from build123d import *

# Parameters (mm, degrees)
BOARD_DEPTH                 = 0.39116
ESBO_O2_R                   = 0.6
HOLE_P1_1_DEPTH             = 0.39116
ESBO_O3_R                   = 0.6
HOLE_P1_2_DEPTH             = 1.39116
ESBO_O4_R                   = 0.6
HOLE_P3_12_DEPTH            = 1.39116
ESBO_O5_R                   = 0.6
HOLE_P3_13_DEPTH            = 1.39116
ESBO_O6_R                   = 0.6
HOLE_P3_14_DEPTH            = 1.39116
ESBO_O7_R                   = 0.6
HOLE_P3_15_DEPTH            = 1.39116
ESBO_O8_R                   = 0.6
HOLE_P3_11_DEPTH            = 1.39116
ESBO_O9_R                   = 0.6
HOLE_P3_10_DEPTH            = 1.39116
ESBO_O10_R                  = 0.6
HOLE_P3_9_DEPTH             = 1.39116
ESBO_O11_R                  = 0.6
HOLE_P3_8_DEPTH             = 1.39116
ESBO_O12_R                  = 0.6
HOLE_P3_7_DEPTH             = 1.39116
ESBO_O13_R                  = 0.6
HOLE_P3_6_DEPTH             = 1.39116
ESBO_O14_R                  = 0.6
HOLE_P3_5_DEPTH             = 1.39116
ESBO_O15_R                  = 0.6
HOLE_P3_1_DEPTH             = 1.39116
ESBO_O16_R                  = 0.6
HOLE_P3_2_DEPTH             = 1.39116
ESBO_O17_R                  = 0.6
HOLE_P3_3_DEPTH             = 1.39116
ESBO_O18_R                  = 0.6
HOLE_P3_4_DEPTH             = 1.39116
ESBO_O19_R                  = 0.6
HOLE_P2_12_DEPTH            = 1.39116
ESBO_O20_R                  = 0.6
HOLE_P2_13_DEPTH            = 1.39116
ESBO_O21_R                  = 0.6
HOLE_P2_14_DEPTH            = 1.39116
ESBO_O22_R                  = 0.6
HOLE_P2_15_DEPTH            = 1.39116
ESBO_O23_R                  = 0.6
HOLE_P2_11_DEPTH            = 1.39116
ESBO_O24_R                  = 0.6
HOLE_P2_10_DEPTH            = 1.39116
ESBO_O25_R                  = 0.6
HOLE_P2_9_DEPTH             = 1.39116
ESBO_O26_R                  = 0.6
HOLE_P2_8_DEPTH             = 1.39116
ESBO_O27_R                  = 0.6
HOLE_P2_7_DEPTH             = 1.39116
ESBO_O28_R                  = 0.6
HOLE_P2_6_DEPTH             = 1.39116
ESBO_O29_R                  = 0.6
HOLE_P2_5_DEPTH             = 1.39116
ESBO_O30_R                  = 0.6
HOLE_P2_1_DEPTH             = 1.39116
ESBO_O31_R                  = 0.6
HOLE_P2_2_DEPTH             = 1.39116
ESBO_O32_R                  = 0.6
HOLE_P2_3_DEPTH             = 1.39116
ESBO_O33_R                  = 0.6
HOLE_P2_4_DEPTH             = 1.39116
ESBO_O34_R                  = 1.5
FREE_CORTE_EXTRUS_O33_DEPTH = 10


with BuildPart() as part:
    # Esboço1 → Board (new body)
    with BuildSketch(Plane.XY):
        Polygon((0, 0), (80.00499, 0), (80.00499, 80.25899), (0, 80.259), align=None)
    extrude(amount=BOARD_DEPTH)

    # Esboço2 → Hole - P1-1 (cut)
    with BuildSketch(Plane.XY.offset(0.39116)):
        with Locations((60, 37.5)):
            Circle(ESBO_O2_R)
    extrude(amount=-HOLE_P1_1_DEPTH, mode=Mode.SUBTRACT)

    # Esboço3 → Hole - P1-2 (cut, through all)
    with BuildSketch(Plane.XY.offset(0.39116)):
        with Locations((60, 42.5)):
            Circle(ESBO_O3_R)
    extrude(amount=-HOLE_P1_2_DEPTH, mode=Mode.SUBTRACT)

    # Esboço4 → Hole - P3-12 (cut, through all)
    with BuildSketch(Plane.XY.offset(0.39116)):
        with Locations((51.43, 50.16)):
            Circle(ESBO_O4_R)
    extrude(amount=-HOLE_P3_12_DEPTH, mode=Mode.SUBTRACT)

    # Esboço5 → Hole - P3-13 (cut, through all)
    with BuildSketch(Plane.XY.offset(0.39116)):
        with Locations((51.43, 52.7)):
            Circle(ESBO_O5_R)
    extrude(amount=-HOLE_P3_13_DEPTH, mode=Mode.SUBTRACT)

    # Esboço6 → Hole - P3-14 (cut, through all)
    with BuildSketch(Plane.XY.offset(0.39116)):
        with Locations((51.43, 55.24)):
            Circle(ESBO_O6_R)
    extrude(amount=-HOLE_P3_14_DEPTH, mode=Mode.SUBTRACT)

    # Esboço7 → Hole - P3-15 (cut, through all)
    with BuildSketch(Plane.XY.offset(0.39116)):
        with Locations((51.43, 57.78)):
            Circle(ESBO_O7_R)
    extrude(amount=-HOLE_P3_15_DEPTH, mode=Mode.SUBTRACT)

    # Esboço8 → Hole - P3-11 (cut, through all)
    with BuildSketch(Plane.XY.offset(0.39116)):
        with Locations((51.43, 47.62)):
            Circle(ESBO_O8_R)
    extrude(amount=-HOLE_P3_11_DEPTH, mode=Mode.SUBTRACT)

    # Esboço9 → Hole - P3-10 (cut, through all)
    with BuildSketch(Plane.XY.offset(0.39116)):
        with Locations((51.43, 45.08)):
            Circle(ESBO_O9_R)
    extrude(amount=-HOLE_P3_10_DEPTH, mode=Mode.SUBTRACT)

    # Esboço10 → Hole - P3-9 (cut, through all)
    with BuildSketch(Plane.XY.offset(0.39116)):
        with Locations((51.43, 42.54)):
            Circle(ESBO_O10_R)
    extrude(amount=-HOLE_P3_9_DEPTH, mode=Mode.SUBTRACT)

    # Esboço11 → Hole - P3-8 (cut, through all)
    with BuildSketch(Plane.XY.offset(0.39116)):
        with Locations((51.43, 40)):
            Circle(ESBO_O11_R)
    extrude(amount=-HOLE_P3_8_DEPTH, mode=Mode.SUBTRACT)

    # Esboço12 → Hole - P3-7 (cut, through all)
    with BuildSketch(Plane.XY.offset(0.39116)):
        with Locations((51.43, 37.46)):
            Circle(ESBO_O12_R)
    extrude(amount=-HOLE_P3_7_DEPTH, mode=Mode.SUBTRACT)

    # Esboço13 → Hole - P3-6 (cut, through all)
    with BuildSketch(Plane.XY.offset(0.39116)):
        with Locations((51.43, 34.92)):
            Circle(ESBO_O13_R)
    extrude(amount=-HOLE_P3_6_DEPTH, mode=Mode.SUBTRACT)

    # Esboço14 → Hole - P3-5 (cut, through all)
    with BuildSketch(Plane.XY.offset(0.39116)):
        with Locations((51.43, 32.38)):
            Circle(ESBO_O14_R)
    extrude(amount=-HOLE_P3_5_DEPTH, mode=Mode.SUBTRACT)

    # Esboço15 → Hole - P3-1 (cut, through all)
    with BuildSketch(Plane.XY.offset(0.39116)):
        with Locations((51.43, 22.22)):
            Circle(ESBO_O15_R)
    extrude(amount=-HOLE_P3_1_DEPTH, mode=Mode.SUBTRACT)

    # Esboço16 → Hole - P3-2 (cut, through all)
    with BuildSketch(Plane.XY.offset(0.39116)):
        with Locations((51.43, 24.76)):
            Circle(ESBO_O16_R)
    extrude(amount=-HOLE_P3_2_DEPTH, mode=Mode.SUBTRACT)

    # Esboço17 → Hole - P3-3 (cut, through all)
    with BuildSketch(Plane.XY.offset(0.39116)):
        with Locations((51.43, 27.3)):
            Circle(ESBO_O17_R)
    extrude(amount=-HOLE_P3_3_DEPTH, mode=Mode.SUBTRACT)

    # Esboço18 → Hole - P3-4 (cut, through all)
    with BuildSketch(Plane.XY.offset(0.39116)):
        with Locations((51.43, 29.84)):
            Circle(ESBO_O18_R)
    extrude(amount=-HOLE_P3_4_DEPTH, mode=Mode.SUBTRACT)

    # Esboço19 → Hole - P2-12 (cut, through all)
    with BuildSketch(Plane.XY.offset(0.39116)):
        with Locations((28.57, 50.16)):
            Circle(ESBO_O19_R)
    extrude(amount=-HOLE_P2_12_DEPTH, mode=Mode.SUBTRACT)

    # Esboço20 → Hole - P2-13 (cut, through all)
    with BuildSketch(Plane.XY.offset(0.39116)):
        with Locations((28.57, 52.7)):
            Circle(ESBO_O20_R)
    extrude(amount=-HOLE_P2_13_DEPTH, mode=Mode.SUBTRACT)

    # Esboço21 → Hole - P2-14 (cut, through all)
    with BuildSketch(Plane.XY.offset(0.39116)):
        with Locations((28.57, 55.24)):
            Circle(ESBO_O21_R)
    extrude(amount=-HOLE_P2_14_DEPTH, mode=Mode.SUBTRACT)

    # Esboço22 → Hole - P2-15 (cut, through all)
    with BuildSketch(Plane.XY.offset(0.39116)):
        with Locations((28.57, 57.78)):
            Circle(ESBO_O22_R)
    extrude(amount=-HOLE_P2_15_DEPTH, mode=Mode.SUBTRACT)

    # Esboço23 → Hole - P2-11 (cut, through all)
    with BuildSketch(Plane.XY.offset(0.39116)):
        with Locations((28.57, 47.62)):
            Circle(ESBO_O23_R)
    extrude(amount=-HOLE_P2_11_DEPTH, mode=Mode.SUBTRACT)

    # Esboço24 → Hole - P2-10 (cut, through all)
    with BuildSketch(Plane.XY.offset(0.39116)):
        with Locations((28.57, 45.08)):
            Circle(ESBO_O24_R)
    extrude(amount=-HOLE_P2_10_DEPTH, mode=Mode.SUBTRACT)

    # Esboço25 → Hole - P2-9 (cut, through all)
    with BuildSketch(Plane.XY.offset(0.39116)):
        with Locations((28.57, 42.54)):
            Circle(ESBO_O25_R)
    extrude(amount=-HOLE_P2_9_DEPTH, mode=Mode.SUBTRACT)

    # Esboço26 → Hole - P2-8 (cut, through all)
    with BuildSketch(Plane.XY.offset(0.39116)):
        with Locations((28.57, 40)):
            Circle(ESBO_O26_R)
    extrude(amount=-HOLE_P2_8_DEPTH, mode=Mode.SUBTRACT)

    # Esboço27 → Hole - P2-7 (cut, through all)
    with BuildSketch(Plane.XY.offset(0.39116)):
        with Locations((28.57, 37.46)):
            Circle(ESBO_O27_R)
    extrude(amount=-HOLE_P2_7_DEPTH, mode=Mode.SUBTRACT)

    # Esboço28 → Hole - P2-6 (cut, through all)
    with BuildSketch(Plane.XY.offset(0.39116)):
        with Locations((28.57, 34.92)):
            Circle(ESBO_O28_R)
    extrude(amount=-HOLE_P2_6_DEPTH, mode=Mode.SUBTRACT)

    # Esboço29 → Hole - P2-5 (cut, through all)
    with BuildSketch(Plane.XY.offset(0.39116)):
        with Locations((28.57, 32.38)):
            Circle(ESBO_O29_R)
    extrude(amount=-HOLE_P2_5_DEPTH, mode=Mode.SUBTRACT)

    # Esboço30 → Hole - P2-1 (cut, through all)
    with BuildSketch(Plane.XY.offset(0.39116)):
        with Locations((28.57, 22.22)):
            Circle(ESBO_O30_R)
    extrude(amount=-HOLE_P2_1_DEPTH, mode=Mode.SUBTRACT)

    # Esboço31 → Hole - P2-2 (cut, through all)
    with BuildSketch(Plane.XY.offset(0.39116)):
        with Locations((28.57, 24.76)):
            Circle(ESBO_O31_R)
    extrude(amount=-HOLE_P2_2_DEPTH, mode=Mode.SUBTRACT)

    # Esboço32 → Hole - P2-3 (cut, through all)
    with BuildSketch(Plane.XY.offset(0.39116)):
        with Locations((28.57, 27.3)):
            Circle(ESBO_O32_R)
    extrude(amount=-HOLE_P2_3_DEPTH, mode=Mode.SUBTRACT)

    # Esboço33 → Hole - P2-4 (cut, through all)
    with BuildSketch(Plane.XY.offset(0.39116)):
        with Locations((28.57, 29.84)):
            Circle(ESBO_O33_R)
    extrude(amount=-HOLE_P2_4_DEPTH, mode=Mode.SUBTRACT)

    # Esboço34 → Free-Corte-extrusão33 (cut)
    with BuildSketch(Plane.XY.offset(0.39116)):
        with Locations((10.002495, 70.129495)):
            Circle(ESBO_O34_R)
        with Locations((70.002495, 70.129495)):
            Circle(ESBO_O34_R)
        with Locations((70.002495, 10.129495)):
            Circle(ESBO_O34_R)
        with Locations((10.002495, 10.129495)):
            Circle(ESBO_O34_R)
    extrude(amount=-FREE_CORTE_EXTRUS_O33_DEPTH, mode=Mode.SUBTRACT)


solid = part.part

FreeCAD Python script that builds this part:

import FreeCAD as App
import Part
import Sketcher
from FreeCAD import Vector
Q = App.Units.Quantity


def add_polygon(sketch, points):
    """Adds a closed chain of lines whose ends are joined by coincident constraints."""
    first, n = sketch.GeometryCount, len(points)
    for a, b in zip(points, points[1:] + points[:1]):
        sketch.addGeometry(Part.LineSegment(App.Vector(*a, 0), App.Vector(*b, 0)), False)
    for i in range(n):
        sketch.addConstraint(Sketcher.Constraint("Coincident", first + i, 2, first + (i + 1) % n, 1))

doc = App.newDocument("Part")
body = doc.addObject("PartDesign::Body", "Body")

# Sketch on XY plane
sketch1 = body.newObject("Sketcher::SketchObject", "Sketch")
sketch1.AttachmentSupport = (doc.getObject("XY_Plane"), [""])
sketch1.MapMode = "FlatFace"
add_polygon(sketch1, [(0, 0), (80.00499, 0), (80.00499, 80.25899), (0, 80.259)])  # lines 0-3
sketch1.addConstraint(Sketcher.Constraint("Horizontal", 0))
sketch1.addConstraint(Sketcher.Constraint("Vertical", 1))
sketch1.addConstraint(Sketcher.Constraint("Vertical", 3))
sketch1.addConstraint(Sketcher.Constraint("Coincident", 3, 2, -1, 1))
sketch1.addConstraint(Sketcher.Constraint("Angle", 2, Q("179.999993 deg")))
sketch1.addConstraint(Sketcher.Constraint("DistanceY", 3, 2, 3, 1, 80.259))
sketch1.addConstraint(Sketcher.Constraint("DistanceX", 0, 1, 0, 2, 80.00499))
pad1 = body.newObject("PartDesign::Pad", "Pad")
pad1.Profile = sketch1
pad1.Length = 0.39116

# Sketch on XY plane
sketch2 = body.newObject("Sketcher::SketchObject", "Sketch001")
sketch2.AttachmentSupport = (doc.getObject("XY_Plane"), [""])
sketch2.MapMode = "FlatFace"
sketch2.AttachmentOffset = App.Placement(Vector(0, 0, 0.39116), App.Rotation())
sketch2.addGeometry(Part.Circle(Vector(60, 37.5, 0), Vector(0, 0, 1), 0.6), False)
sketch2.addConstraint(Sketcher.Constraint("Diameter", 0, 1.2))
sketch2.addConstraint(Sketcher.Constraint("DistanceX", -1, 1, 0, 3, 60.0))
sketch2.addConstraint(Sketcher.Constraint("DistanceY", -1, 1, 0, 3, 37.5))
pocket1 = body.newObject("PartDesign::Pocket", "Pocket")
pocket1.Profile = sketch2
pocket1.Length = 0.39116

# Sketch on XY plane
sketch3 = body.newObject("Sketcher::SketchObject", "Sketch002")
sketch3.AttachmentSupport = (doc.getObject("XY_Plane"), [""])
sketch3.MapMode = "FlatFace"
sketch3.AttachmentOffset = App.Placement(Vector(0, 0, 0.39116), App.Rotation())
sketch3.addGeometry(Part.Circle(Vector(60, 42.5, 0), Vector(0, 0, 1), 0.6), False)
sketch3.addConstraint(Sketcher.Constraint("Diameter", 0, 1.2))
sketch3.addConstraint(Sketcher.Constraint("DistanceX", -1, 1, 0, 3, 60.0))
sketch3.addConstraint(Sketcher.Constraint("DistanceY", -1, 1, 0, 3, 42.5))
pocket2 = body.newObject("PartDesign::Pocket", "Pocket001")
pocket2.Profile = sketch3
pocket2.Type = "ThroughAll"

# Sketch on XY plane
sketch4 = body.newObject("Sketcher::SketchObject", "Sketch003")
sketch4.AttachmentSupport = (doc.getObject("XY_Plane"), [""])
sketch4.MapMode = "FlatFace"
sketch4.AttachmentOffset = App.Placement(Vector(0, 0, 0.39116), App.Rotation())
sketch4.addGeometry(Part.Circle(Vector(51.43, 50.16, 0), Vector(0, 0, 1), 0.6), False)
sketch4.addConstraint(Sketcher.Constraint("Diameter", 0, 1.2))
sketch4.addConstraint(Sketcher.Constraint("DistanceX", -1, 1, 0, 3, 51.43))
sketch4.addConstraint(Sketcher.Constraint("DistanceY", -1, 1, 0, 3, 50.16))
pocket3 = body.newObject("PartDesign::Pocket", "Pocket002")
pocket3.Profile = sketch4
pocket3.Type = "ThroughAll"

# Sketch on XY plane
sketch5 = body.newObject("Sketcher::SketchObject", "Sketch004")
sketch5.AttachmentSupport = (doc.getObject("XY_Plane"), [""])
sketch5.MapMode = "FlatFace"
sketch5.AttachmentOffset = App.Placement(Vector(0, 0, 0.39116), App.Rotation())
sketch5.addGeometry(Part.Circle(Vector(51.43, 52.7, 0), Vector(0, 0, 1), 0.6), False)
sketch5.addConstraint(Sketcher.Constraint("Diameter", 0, 1.2))
sketch5.addConstraint(Sketcher.Constraint("DistanceY", -1, 1, 0, 3, 52.7))
sketch5.addConstraint(Sketcher.Constraint("DistanceX", -1, 1, 0, 3, 51.43))
pocket4 = body.newObject("PartDesign::Pocket", "Pocket003")
pocket4.Profile = sketch5
pocket4.Type = "ThroughAll"

# Sketch on XY plane
sketch6 = body.newObject("Sketcher::SketchObject", "Sketch005")
sketch6.AttachmentSupport = (doc.getObject("XY_Plane"), [""])
sketch6.MapMode = "FlatFace"
sketch6.AttachmentOffset = App.Placement(Vector(0, 0, 0.39116), App.Rotation())
sketch6.addGeometry(Part.Circle(Vector(51.43, 55.24, 0), Vector(0, 0, 1), 0.6), False)
sketch6.addConstraint(Sketcher.Constraint("Diameter", 0, 1.2))
sketch6.addConstraint(Sketcher.Constraint("DistanceX", -1, 1, 0, 3, 51.43))
sketch6.addConstraint(Sketcher.Constraint("DistanceY", -1, 1, 0, 3, 55.24))
pocket5 = body.newObject("PartDesign::Pocket", "Pocket004")
pocket5.Profile = sketch6
pocket5.Type = "ThroughAll"

# Sketch on XY plane
sketch7 = body.newObject("Sketcher::SketchObject", "Sketch006")
sketch7.AttachmentSupport = (doc.getObject("XY_Plane"), [""])
sketch7.MapMode = "FlatFace"
sketch7.AttachmentOffset = App.Placement(Vector(0, 0, 0.39116), App.Rotation())
sketch7.addGeometry(Part.Circle(Vector(51.43, 57.78, 0), Vector(0, 0, 1), 0.6), False)
sketch7.addConstraint(Sketcher.Constraint("Diameter", 0, 1.2))
sketch7.addConstraint(Sketcher.Constraint("DistanceX", -1, 1, 0, 3, 51.43))
sketch7.addConstraint(Sketcher.Constraint("DistanceY", -1, 1, 0, 3, 57.78))
pocket6 = body.newObject("PartDesign::Pocket", "Pocket005")
pocket6.Profile = sketch7
pocket6.Type = "ThroughAll"

# Sketch on XY plane
sketch8 = body.newObject("Sketcher::SketchObject", "Sketch007")
sketch8.AttachmentSupport = (doc.getObject("XY_Plane"), [""])
sketch8.MapMode = "FlatFace"
sketch8.AttachmentOffset = App.Placement(Vector(0, 0, 0.39116), App.Rotation())
sketch8.addGeometry(Part.Circle(Vector(51.43, 47.62, 0), Vector(0, 0, 1), 0.6), False)
sketch8.addConstraint(Sketcher.Constraint("Diameter", 0, 1.2))
sketch8.addConstraint(Sketcher.Constraint("DistanceX", -1, 1, 0, 3, 51.43))
sketch8.addConstraint(Sketcher.Constraint("DistanceY", -1, 1, 0, 3, 47.62))
pocket7 = body.newObject("PartDesign::Pocket", "Pocket006")
pocket7.Profile = sketch8
pocket7.Type = "ThroughAll"

# Sketch on XY plane
sketch9 = body.newObject("Sketcher::SketchObject", "Sketch008")
sketch9.AttachmentSupport = (doc.getObject("XY_Plane"), [""])
sketch9.MapMode = "FlatFace"
sketch9.AttachmentOffset = App.Placement(Vector(0, 0, 0.39116), App.Rotation())
sketch9.addGeometry(Part.Circle(Vector(51.43, 45.08, 0), Vector(0, 0, 1), 0.6), False)
sketch9.addConstraint(Sketcher.Constraint("Diameter", 0, 1.2))
sketch9.addConstraint(Sketcher.Constraint("DistanceX", -1, 1, 0, 3, 51.43))
sketch9.addConstraint(Sketcher.Constraint("DistanceY", -1, 1, 0, 3, 45.08))
pocket8 = body.newObject("PartDesign::Pocket", "Pocket007")
pocket8.Profile = sketch9
pocket8.Type = "ThroughAll"

# Sketch on XY plane
sketch10 = body.newObject("Sketcher::SketchObject", "Sketch009")
sketch10.AttachmentSupport = (doc.getObject("XY_Plane"), [""])
sketch10.MapMode = "FlatFace"
sketch10.AttachmentOffset = App.Placement(Vector(0, 0, 0.39116), App.Rotation())
sketch10.addGeometry(Part.Circle(Vector(51.43, 42.54, 0), Vector(0, 0, 1), 0.6), False)
sketch10.addConstraint(Sketcher.Constraint("Diameter", 0, 1.2))
sketch10.addConstraint(Sketcher.Constraint("DistanceX", -1, 1, 0, 3, 51.43))
sketch10.addConstraint(Sketcher.Constraint("DistanceY", -1, 1, 0, 3, 42.54))
pocket9 = body.newObject("PartDesign::Pocket", "Pocket008")
pocket9.Profile = sketch10
pocket9.Type = "ThroughAll"

# Sketch on XY plane
sketch11 = body.newObject("Sketcher::SketchObject", "Sketch010")
sketch11.AttachmentSupport = (doc.getObject("XY_Plane"), [""])
sketch11.MapMode = "FlatFace"
sketch11.AttachmentOffset = App.Placement(Vector(0, 0, 0.39116), App.Rotation())
sketch11.addGeometry(Part.Circle(Vector(51.43, 40, 0), Vector(0, 0, 1), 0.6), False)
sketch11.addConstraint(Sketcher.Constraint("Diameter", 0, 1.2))
sketch11.addConstraint(Sketcher.Constraint("DistanceY", -1, 1, 0, 3, 40.0))
sketch11.addConstraint(Sketcher.Constraint("DistanceX", -1, 1, 0, 3, 51.43))
pocket10 = body.newObject("PartDesign::Pocket", "Pocket009")
pocket10.Profile = sketch11
pocket10.Type = "ThroughAll"

# Sketch on XY plane
sketch12 = body.newObject("Sketcher::SketchObject", "Sketch011")
sketch12.AttachmentSupport = (doc.getObject("XY_Plane"), [""])
sketch12.MapMode = "FlatFace"
sketch12.AttachmentOffset = App.Placement(Vector(0, 0, 0.39116), App.Rotation())
sketch12.addGeometry(Part.Circle(Vector(51.43, 37.46, 0), Vector(0, 0, 1), 0.6), False)
sketch12.addConstraint(Sketcher.Constraint("Diameter", 0, 1.2))
sketch12.addConstraint(Sketcher.Constraint("DistanceX", -1, 1, 0, 3, 51.43))
sketch12.addConstraint(Sketcher.Constraint("DistanceY", -1, 1, 0, 3, 37.46))
pocket11 = body.newObject("PartDesign::Pocket", "Pocket010")
pocket11.Profile = sketch12
pocket11.Type = "ThroughAll"

# Sketch on XY plane
sketch13 = body.newObject("Sketcher::SketchObject", "Sketch012")
sketch13.AttachmentSupport = (doc.getObject("XY_Plane"), [""])
sketch13.MapMode = "FlatFace"
sketch13.AttachmentOffset = App.Placement(Vector(0, 0, 0.39116), App.Rotation())
sketch13.addGeometry(Part.Circle(Vector(51.43, 34.92, 0), Vector(0, 0, 1), 0.6), False)
sketch13.addConstraint(Sketcher.Constraint("Diameter", 0, 1.2))
sketch13.addConstraint(Sketcher.Constraint("DistanceX", -1, 1, 0, 3, 51.43))
sketch13.addConstraint(Sketcher.Constraint("DistanceY", -1, 1, 0, 3, 34.92))
pocket12 = body.newObject("PartDesign::Pocket", "Pocket011")
pocket12.Profile = sketch13
pocket12.Type = "ThroughAll"

# Sketch on XY plane
sketch14 = body.newObject("Sketcher::SketchObject", "Sketch013")
sketch14.AttachmentSupport = (doc.getObject("XY_Plane"), [""])
sketch14.MapMode = "FlatFace"
sketch14.AttachmentOffset = App.Placement(Vector(0, 0, 0.39116), App.Rotation())
sketch14.addGeometry(Part.Circle(Vector(51.43, 32.38, 0), Vector(0, 0, 1), 0.6), False)
sketch14.addConstraint(Sketcher.Constraint("Diameter", 0, 1.2))
sketch14.addConstraint(Sketcher.Constraint("DistanceX", -1, 1, 0, 3, 51.43))
sketch14.addConstraint(Sketcher.Constraint("DistanceY", -1, 1, 0, 3, 32.38))
pocket13 = body.newObject("PartDesign::Pocket", "Pocket012")
pocket13.Profile = sketch14
pocket13.Type = "ThroughAll"

# Sketch on XY plane
sketch15 = body.newObject("Sketcher::SketchObject", "Sketch014")
sketch15.AttachmentSupport = (doc.getObject("XY_Plane"), [""])
sketch15.MapMode = "FlatFace"
sketch15.AttachmentOffset = App.Placement(Vector(0, 0, 0.39116), App.Rotation())
sketch15.addGeometry(Part.Circle(Vector(51.43, 22.22, 0), Vector(0, 0, 1), 0.6), False)
sketch15.addConstraint(Sketcher.Constraint("Diameter", 0, 1.2))
sketch15.addConstraint(Sketcher.Constraint("DistanceX", -1, 1, 0, 3, 51.43))
sketch15.addConstraint(Sketcher.Constraint("DistanceY", -1, 1, 0, 3, 22.22))
pocket14 = body.newObject("PartDesign::Pocket", "Pocket013")
pocket14.Profile = sketch15
pocket14.Type = "ThroughAll"

# Sketch on XY plane
sketch16 = body.newObject("Sketcher::SketchObject", "Sketch015")
sketch16.AttachmentSupport = (doc.getObject("XY_Plane"), [""])
sketch16.MapMode = "FlatFace"
sketch16.AttachmentOffset = App.Placement(Vector(0, 0, 0.39116), App.Rotation())
sketch16.addGeometry(Part.Circle(Vector(51.43, 24.76, 0), Vector(0, 0, 1), 0.6), False)
sketch16.addConstraint(Sketcher.Constraint("Diameter", 0, 1.2))
sketch16.addConstraint(Sketcher.Constraint("DistanceX", -1, 1, 0, 3, 51.43))
sketch16.addConstraint(Sketcher.Constraint("DistanceY", -1, 1, 0, 3, 24.76))
pocket15 = body.newObject("PartDesign::Pocket", "Pocket014")
pocket15.Profile = sketch16
pocket15.Type = "ThroughAll"

# Sketch on XY plane
sketch17 = body.newObject("Sketcher::SketchObject", "Sketch016")
sketch17.AttachmentSupport = (doc.getObject("XY_Plane"), [""])
sketch17.MapMode = "FlatFace"
sketch17.AttachmentOffset = App.Placement(Vector(0, 0, 0.39116), App.Rotation())
sketch17.addGeometry(Part.Circle(Vector(51.43, 27.3, 0), Vector(0, 0, 1), 0.6), False)
sketch17.addConstraint(Sketcher.Constraint("Diameter", 0, 1.2))
sketch17.addConstraint(Sketcher.Constraint("DistanceY", -1, 1, 0, 3, 27.3))
sketch17.addConstraint(Sketcher.Constraint("DistanceX", -1, 1, 0, 3, 51.43))
pocket16 = body.newObject("PartDesign::Pocket", "Pocket015")
pocket16.Profile = sketch17
pocket16.Type = "ThroughAll"

# Sketch on XY plane
sketch18 = body.newObject("Sketcher::SketchObject", "Sketch017")
sketch18.AttachmentSupport = (doc.getObject("XY_Plane"), [""])
sketch18.MapMode = "FlatFace"
sketch18.AttachmentOffset = App.Placement(Vector(0, 0, 0.39116), App.Rotation())
sketch18.addGeometry(Part.Circle(Vector(51.43, 29.84, 0), Vector(0, 0, 1), 0.6), False)
sketch18.addConstraint(Sketcher.Constraint("Diameter", 0, 1.2))
sketch18.addConstraint(Sketcher.Constraint("DistanceX", -1, 1, 0, 3, 51.43))
sketch18.addConstraint(Sketcher.Constraint("DistanceY", -1, 1, 0, 3, 29.84))
pocket17 = body.newObject("PartDesign::Pocket", "Pocket016")
pocket17.Profile = sketch18
pocket17.Type = "ThroughAll"

# Sketch on XY plane
sketch19 = body.newObject("Sketcher::SketchObject", "Sketch018")
sketch19.AttachmentSupport = (doc.getObject("XY_Plane"), [""])
sketch19.MapMode = "FlatFace"
sketch19.AttachmentOffset = App.Placement(Vector(0, 0, 0.39116), App.Rotation())
sketch19.addGeometry(Part.Circle(Vector(28.57, 50.16, 0), Vector(0, 0, 1), 0.6), False)
sketch19.addConstraint(Sketcher.Constraint("Diameter", 0, 1.2))
sketch19.addConstraint(Sketcher.Constraint("DistanceX", -1, 1, 0, 3, 28.57))
sketch19.addConstraint(Sketcher.Constraint("DistanceY", -1, 1, 0, 3, 50.16))
pocket18 = body.newObject("PartDesign::Pocket", "Pocket017")
pocket18.Profile = sketch19
pocket18.Type = "ThroughAll"

# Sketch on XY plane
sketch20 = body.newObject("Sketcher::SketchObject", "Sketch019")
sketch20.AttachmentSupport = (doc.getObject("XY_Plane"), [""])
sketch20.MapMode = "FlatFace"
sketch20.AttachmentOffset = App.Placement(Vector(0, 0, 0.39116), App.Rotation())
sketch20.addGeometry(Part.Circle(Vector(28.57, 52.7, 0), Vector(0, 0, 1), 0.6), False)
sketch20.addConstraint(Sketcher.Constraint("Diameter", 0, 1.2))
sketch20.addConstraint(Sketcher.Constraint("DistanceY", -1, 1, 0, 3, 52.7))
sketch20.addConstraint(Sketcher.Constraint("DistanceX", -1, 1, 0, 3, 28.57))
pocket19 = body.newObject("PartDesign::Pocket", "Pocket018")
pocket19.Profile = sketch20
pocket19.Type = "ThroughAll"

# Sketch on XY plane
sketch21 = body.newObject("Sketcher::SketchObject", "Sketch020")
sketch21.AttachmentSupport = (doc.getObject("XY_Plane"), [""])
sketch21.MapMode = "FlatFace"
sketch21.AttachmentOffset = App.Placement(Vector(0, 0, 0.39116), App.Rotation())
sketch21.addGeometry(Part.Circle(Vector(28.57, 55.24, 0), Vector(0, 0, 1), 0.6), False)
sketch21.addConstraint(Sketcher.Constraint("Diameter", 0, 1.2))
sketch21.addConstraint(Sketcher.Constraint("DistanceX", -1, 1, 0, 3, 28.57))
sketch21.addConstraint(Sketcher.Constraint("DistanceY", -1, 1, 0, 3, 55.24))
pocket20 = body.newObject("PartDesign::Pocket", "Pocket019")
pocket20.Profile = sketch21
pocket20.Type = "ThroughAll"

# Sketch on XY plane
sketch22 = body.newObject("Sketcher::SketchObject", "Sketch021")
sketch22.AttachmentSupport = (doc.getObject("XY_Plane"), [""])
sketch22.MapMode = "FlatFace"
sketch22.AttachmentOffset = App.Placement(Vector(0, 0, 0.39116), App.Rotation())
sketch22.addGeometry(Part.Circle(Vector(28.57, 57.78, 0), Vector(0, 0, 1), 0.6), False)
sketch22.addConstraint(Sketcher.Constraint("Diameter", 0, 1.2))
sketch22.addConstraint(Sketcher.Constraint("DistanceX", -1, 1, 0, 3, 28.57))
sketch22.addConstraint(Sketcher.Constraint("DistanceY", -1, 1, 0, 3, 57.78))
pocket21 = body.newObject("PartDesign::Pocket", "Pocket020")
pocket21.Profile = sketch22
pocket21.Type = "ThroughAll"

# Sketch on XY plane
sketch23 = body.newObject("Sketcher::SketchObject", "Sketch022")
sketch23.AttachmentSupport = (doc.getObject("XY_Plane"), [""])
sketch23.MapMode = "FlatFace"
sketch23.AttachmentOffset = App.Placement(Vector(0, 0, 0.39116), App.Rotation())
sketch23.addGeometry(Part.Circle(Vector(28.57, 47.62, 0), Vector(0, 0, 1), 0.6), False)
sketch23.addConstraint(Sketcher.Constraint("Diameter", 0, 1.2))
sketch23.addConstraint(Sketcher.Constraint("DistanceX", -1, 1, 0, 3, 28.57))
sketch23.addConstraint(Sketcher.Constraint("DistanceY", -1, 1, 0, 3, 47.62))
pocket22 = body.newObject("PartDesign::Pocket", "Pocket021")
pocket22.Profile = sketch23
pocket22.Type = "ThroughAll"

# Sketch on XY plane
sketch24 = body.newObject("Sketcher::SketchObject", "Sketch023")
sketch24.AttachmentSupport = (doc.getObject("XY_Plane"), [""])
sketch24.MapMode = "FlatFace"
sketch24.AttachmentOffset = App.Placement(Vector(0, 0, 0.39116), App.Rotation())
sketch24.addGeometry(Part.Circle(Vector(28.57, 45.08, 0), Vector(0, 0, 1), 0.6), False)
sketch24.addConstraint(Sketcher.Constraint("Diameter", 0, 1.2))
sketch24.addConstraint(Sketcher.Constraint("DistanceX", -1, 1, 0, 3, 28.57))
sketch24.addConstraint(Sketcher.Constraint("DistanceY", -1, 1, 0, 3, 45.08))
pocket23 = body.newObject("PartDesign::Pocket", "Pocket022")
pocket23.Profile = sketch24
pocket23.Type = "ThroughAll"

# Sketch on XY plane
sketch25 = body.newObject("Sketcher::SketchObject", "Sketch024")
sketch25.AttachmentSupport = (doc.getObject("XY_Plane"), [""])
sketch25.MapMode = "FlatFace"
sketch25.AttachmentOffset = App.Placement(Vector(0, 0, 0.39116), App.Rotation())
sketch25.addGeometry(Part.Circle(Vector(28.57, 42.54, 0), Vector(0, 0, 1), 0.6), False)
sketch25.addConstraint(Sketcher.Constraint("Diameter", 0, 1.2))
sketch25.addConstraint(Sketcher.Constraint("DistanceX", -1, 1, 0, 3, 28.57))
sketch25.addConstraint(Sketcher.Constraint("DistanceY", -1, 1, 0, 3, 42.54))
pocket24 = body.newObject("PartDesign::Pocket", "Pocket023")
pocket24.Profile = sketch25
pocket24.Type = "ThroughAll"

# Sketch on XY plane
sketch26 = body.newObject("Sketcher::SketchObject", "Sketch025")
sketch26.AttachmentSupport = (doc.getObject("XY_Plane"), [""])
sketch26.MapMode = "FlatFace"
sketch26.AttachmentOffset = App.Placement(Vector(0, 0, 0.39116), App.Rotation())
sketch26.addGeometry(Part.Circle(Vector(28.57, 40, 0), Vector(0, 0, 1), 0.6), False)
sketch26.addConstraint(Sketcher.Constraint("Diameter", 0, 1.2))
sketch26.addConstraint(Sketcher.Constraint("DistanceY", -1, 1, 0, 3, 40.0))
sketch26.addConstraint(Sketcher.Constraint("DistanceX", -1, 1, 0, 3, 28.57))
pocket25 = body.newObject("PartDesign::Pocket", "Pocket024")
pocket25.Profile = sketch26
pocket25.Type = "ThroughAll"

# Sketch on XY plane
sketch27 = body.newObject("Sketcher::SketchObject", "Sketch026")
sketch27.AttachmentSupport = (doc.getObject("XY_Plane"), [""])
sketch27.MapMode = "FlatFace"
sketch27.AttachmentOffset = App.Placement(Vector(0, 0, 0.39116), App.Rotation())
sketch27.addGeometry(Part.Circle(Vector(28.57, 37.46, 0), Vector(0, 0, 1), 0.6), False)
sketch27.addConstraint(Sketcher.Constraint("Diameter", 0, 1.2))
sketch27.addConstraint(Sketcher.Constraint("DistanceX", -1, 1, 0, 3, 28.57))
sketch27.addConstraint(Sketcher.Constraint("DistanceY", -1, 1, 0, 3, 37.46))
pocket26 = body.newObject("PartDesign::Pocket", "Pocket025")
pocket26.Profile = sketch27
pocket26.Type = "ThroughAll"

# Sketch on XY plane
sketch28 = body.newObject("Sketcher::SketchObject", "Sketch027")
sketch28.AttachmentSupport = (doc.getObject("XY_Plane"), [""])
sketch28.MapMode = "FlatFace"
sketch28.AttachmentOffset = App.Placement(Vector(0, 0, 0.39116), App.Rotation())
sketch28.addGeometry(Part.Circle(Vector(28.57, 34.92, 0), Vector(0, 0, 1), 0.6), False)
sketch28.addConstraint(Sketcher.Constraint("Diameter", 0, 1.2))
sketch28.addConstraint(Sketcher.Constraint("DistanceX", -1, 1, 0, 3, 28.57))
sketch28.addConstraint(Sketcher.Constraint("DistanceY", -1, 1, 0, 3, 34.92))
pocket27 = body.newObject("PartDesign::Pocket", "Pocket026")
pocket27.Profile = sketch28
pocket27.Type = "ThroughAll"

# Sketch on XY plane
sketch29 = body.newObject("Sketcher::SketchObject", "Sketch028")
sketch29.AttachmentSupport = (doc.getObject("XY_Plane"), [""])
sketch29.MapMode = "FlatFace"
sketch29.AttachmentOffset = App.Placement(Vector(0, 0, 0.39116), App.Rotation())
sketch29.addGeometry(Part.Circle(Vector(28.57, 32.38, 0), Vector(0, 0, 1), 0.6), False)
sketch29.addConstraint(Sketcher.Constraint("Diameter", 0, 1.2))
sketch29.addConstraint(Sketcher.Constraint("DistanceX", -1, 1, 0, 3, 28.57))
sketch29.addConstraint(Sketcher.Constraint("DistanceY", -1, 1, 0, 3, 32.38))
pocket28 = body.newObject("PartDesign::Pocket", "Pocket027")
pocket28.Profile = sketch29
pocket28.Type = "ThroughAll"

# Sketch on XY plane
sketch30 = body.newObject("Sketcher::SketchObject", "Sketch029")
sketch30.AttachmentSupport = (doc.getObject("XY_Plane"), [""])
sketch30.MapMode = "FlatFace"
sketch30.AttachmentOffset = App.Placement(Vector(0, 0, 0.39116), App.Rotation())
sketch30.addGeometry(Part.Circle(Vector(28.57, 22.22, 0), Vector(0, 0, 1), 0.6), False)
sketch30.addConstraint(Sketcher.Constraint("Diameter", 0, 1.2))
sketch30.addConstraint(Sketcher.Constraint("DistanceX", -1, 1, 0, 3, 28.57))
sketch30.addConstraint(Sketcher.Constraint("DistanceY", -1, 1, 0, 3, 22.22))
pocket29 = body.newObject("PartDesign::Pocket", "Pocket028")
pocket29.Profile = sketch30
pocket29.Type = "ThroughAll"

# Sketch on XY plane
sketch31 = body.newObject("Sketcher::SketchObject", "Sketch030")
sketch31.AttachmentSupport = (doc.getObject("XY_Plane"), [""])
sketch31.MapMode = "FlatFace"
sketch31.AttachmentOffset = App.Placement(Vector(0, 0, 0.39116), App.Rotation())
sketch31.addGeometry(Part.Circle(Vector(28.57, 24.76, 0), Vector(0, 0, 1), 0.6), False)
sketch31.addConstraint(Sketcher.Constraint("Diameter", 0, 1.2))
sketch31.addConstraint(Sketcher.Constraint("DistanceX", -1, 1, 0, 3, 28.57))
sketch31.addConstraint(Sketcher.Constraint("DistanceY", -1, 1, 0, 3, 24.76))
pocket30 = body.newObject("PartDesign::Pocket", "Pocket029")
pocket30.Profile = sketch31
pocket30.Type = "ThroughAll"

# Sketch on XY plane
sketch32 = body.newObject("Sketcher::SketchObject", "Sketch031")
sketch32.AttachmentSupport = (doc.getObject("XY_Plane"), [""])
sketch32.MapMode = "FlatFace"
sketch32.AttachmentOffset = App.Placement(Vector(0, 0, 0.39116), App.Rotation())
sketch32.addGeometry(Part.Circle(Vector(28.57, 27.3, 0), Vector(0, 0, 1), 0.6), False)
sketch32.addConstraint(Sketcher.Constraint("Diameter", 0, 1.2))
sketch32.addConstraint(Sketcher.Constraint("DistanceY", -1, 1, 0, 3, 27.3))
sketch32.addConstraint(Sketcher.Constraint("DistanceX", -1, 1, 0, 3, 28.57))
pocket31 = body.newObject("PartDesign::Pocket", "Pocket030")
pocket31.Profile = sketch32
pocket31.Type = "ThroughAll"

# Sketch on XY plane
sketch33 = body.newObject("Sketcher::SketchObject", "Sketch032")
sketch33.AttachmentSupport = (doc.getObject("XY_Plane"), [""])
sketch33.MapMode = "FlatFace"
sketch33.AttachmentOffset = App.Placement(Vector(0, 0, 0.39116), App.Rotation())
sketch33.addGeometry(Part.Circle(Vector(28.57, 29.84, 0), Vector(0, 0, 1), 0.6), False)
sketch33.addConstraint(Sketcher.Constraint("Diameter", 0, 1.2))
sketch33.addConstraint(Sketcher.Constraint("DistanceX", -1, 1, 0, 3, 28.57))
sketch33.addConstraint(Sketcher.Constraint("DistanceY", -1, 1, 0, 3, 29.84))
pocket32 = body.newObject("PartDesign::Pocket", "Pocket031")
pocket32.Profile = sketch33
pocket32.Type = "ThroughAll"

# Sketch on XY plane
sketch34 = body.newObject("Sketcher::SketchObject", "Sketch033")
sketch34.AttachmentSupport = (doc.getObject("XY_Plane"), [""])
sketch34.MapMode = "FlatFace"
sketch34.AttachmentOffset = App.Placement(Vector(0, 0, 0.39116), App.Rotation())
sketch34.addGeometry(Part.Circle(Vector(10.002495, 70.129495, 0), Vector(0, 0, 1), 1.5), False)
sketch34.addGeometry(Part.Circle(Vector(70.002495, 70.129495, 0), Vector(0, 0, 1), 1.5), False)
sketch34.addGeometry(Part.Circle(Vector(70.002495, 10.129495, 0), Vector(0, 0, 1), 1.5), False)
sketch34.addGeometry(Part.Circle(Vector(10.002495, 10.129495, 0), Vector(0, 0, 1), 1.5), False)
sketch34.addConstraint(Sketcher.Constraint("Equal", 0, 1))
sketch34.addConstraint(Sketcher.Constraint("Equal", 1, 2))
sketch34.addConstraint(Sketcher.Constraint("Equal", 2, 3))
sketch34.addConstraint(Sketcher.Constraint("Horizontal", 0, 3, 1, 3))
sketch34.addConstraint(Sketcher.Constraint("Horizontal", 2, 3, 3, 3))
sketch34.addConstraint(Sketcher.Constraint("Vertical", 1, 3, 2, 3))
sketch34.addConstraint(Sketcher.Constraint("Vertical", 0, 3, 3, 3))
sketch34.addConstraint(Sketcher.Constraint("Diameter", 0, 3.0))
sketch34.addConstraint(Sketcher.Constraint("DistanceX", 0, 3, 1, 3, 60.0))
sketch34.addConstraint(Sketcher.Constraint("DistanceY", 2, 3, 1, 3, 60.0))
sketch34.addConstraint(Sketcher.Constraint("DistanceX", -1, 1, 0, 3, 10.002495))
sketch34.addConstraint(Sketcher.Constraint("DistanceY", -1, 1, 0, 3, 70.129495))
pocket33 = body.newObject("PartDesign::Pocket", "Pocket032")
pocket33.Profile = sketch34
pocket33.Length = 10

doc.recompute()
